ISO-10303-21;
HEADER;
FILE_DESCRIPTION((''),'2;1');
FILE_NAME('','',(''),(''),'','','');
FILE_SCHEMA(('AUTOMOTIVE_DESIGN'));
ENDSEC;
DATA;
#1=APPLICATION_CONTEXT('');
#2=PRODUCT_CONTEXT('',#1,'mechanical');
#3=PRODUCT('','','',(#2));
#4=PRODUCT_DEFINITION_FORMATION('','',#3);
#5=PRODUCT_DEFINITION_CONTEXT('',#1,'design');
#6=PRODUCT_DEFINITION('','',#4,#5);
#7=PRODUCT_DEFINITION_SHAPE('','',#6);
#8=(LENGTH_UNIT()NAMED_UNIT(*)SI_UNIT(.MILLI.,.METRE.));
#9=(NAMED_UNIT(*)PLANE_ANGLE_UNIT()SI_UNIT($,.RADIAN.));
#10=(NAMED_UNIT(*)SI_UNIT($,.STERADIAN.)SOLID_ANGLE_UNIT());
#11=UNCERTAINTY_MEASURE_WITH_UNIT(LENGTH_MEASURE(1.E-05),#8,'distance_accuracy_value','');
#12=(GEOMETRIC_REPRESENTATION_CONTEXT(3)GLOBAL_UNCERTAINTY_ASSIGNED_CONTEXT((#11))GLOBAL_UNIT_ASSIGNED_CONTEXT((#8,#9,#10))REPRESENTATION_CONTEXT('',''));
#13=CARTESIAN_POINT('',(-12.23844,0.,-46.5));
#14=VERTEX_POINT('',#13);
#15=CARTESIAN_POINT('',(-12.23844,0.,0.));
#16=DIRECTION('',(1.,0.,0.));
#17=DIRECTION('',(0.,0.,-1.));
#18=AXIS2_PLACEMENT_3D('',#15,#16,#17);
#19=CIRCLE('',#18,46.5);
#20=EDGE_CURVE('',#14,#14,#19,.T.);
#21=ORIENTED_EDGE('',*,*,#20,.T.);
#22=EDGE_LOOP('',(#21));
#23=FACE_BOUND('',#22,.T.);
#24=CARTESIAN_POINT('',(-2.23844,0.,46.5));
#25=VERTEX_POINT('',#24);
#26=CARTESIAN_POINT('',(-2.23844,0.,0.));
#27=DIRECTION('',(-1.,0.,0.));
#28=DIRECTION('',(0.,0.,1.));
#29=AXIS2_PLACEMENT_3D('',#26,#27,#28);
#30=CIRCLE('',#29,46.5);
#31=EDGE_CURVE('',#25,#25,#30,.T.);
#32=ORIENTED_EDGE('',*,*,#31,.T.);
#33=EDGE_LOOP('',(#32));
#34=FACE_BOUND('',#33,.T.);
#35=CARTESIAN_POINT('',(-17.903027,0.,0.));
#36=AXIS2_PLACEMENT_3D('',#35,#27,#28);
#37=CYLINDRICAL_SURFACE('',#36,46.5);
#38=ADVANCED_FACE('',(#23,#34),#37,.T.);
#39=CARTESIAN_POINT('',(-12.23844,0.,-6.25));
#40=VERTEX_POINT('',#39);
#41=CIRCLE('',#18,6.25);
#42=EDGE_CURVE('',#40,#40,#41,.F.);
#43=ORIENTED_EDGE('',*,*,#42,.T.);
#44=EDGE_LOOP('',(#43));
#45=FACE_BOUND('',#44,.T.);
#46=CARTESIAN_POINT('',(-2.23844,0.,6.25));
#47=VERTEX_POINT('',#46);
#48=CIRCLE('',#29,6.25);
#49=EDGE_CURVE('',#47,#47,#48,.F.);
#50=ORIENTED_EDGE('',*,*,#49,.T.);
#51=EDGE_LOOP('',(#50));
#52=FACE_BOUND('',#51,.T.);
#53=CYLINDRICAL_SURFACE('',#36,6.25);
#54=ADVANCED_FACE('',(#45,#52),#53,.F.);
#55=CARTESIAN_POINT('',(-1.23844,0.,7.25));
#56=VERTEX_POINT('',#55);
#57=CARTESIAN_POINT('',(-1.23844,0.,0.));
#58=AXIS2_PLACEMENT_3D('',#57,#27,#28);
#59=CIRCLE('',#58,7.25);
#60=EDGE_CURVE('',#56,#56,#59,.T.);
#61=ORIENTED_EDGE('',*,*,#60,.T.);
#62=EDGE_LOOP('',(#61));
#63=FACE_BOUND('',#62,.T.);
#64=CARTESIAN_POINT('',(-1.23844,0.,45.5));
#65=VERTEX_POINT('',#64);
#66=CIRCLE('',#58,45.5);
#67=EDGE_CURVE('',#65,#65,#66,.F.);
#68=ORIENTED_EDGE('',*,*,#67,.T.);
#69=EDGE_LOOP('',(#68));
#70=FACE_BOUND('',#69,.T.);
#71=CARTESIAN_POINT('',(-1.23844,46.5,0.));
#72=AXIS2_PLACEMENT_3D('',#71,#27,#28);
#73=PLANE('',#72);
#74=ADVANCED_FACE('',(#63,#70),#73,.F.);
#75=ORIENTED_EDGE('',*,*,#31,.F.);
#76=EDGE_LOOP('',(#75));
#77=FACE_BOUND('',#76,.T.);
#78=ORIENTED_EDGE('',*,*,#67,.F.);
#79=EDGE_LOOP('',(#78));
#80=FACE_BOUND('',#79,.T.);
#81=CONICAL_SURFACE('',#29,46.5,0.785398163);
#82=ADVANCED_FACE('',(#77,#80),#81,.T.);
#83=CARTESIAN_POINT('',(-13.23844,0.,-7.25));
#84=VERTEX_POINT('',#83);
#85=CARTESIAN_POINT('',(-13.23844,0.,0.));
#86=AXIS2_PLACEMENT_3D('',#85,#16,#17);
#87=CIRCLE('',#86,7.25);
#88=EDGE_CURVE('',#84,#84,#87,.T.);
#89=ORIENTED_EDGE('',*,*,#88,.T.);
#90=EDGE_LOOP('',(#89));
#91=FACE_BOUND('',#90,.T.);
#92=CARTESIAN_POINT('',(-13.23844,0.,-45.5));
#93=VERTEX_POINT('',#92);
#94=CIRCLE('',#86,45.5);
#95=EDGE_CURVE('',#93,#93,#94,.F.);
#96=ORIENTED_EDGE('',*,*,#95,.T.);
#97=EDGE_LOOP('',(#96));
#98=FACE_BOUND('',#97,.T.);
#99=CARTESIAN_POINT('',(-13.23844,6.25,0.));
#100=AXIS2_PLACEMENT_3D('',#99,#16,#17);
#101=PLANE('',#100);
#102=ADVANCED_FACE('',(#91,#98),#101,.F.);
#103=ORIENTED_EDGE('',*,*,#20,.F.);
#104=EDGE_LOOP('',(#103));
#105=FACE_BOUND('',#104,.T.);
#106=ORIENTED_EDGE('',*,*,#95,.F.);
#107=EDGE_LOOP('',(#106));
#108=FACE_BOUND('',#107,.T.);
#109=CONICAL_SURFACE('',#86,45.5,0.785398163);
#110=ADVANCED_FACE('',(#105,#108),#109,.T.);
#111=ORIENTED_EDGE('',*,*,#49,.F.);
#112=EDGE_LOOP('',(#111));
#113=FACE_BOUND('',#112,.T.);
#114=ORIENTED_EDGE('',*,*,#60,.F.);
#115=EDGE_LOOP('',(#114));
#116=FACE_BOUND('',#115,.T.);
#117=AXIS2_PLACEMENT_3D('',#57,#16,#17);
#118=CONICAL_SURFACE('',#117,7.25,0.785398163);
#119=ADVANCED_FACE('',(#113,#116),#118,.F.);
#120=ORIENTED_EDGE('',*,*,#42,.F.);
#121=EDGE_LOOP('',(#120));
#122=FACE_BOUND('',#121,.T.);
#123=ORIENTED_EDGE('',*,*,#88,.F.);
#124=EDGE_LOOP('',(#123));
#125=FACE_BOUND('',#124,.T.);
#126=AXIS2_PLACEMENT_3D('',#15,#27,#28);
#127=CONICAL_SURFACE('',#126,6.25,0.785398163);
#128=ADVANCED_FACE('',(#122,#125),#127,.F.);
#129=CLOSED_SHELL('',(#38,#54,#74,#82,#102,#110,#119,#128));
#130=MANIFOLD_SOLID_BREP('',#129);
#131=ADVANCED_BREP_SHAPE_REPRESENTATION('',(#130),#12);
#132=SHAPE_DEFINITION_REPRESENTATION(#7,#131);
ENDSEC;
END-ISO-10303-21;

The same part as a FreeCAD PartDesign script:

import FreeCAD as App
import Part
import Sketcher

V = App.Vector
Q = App.Units.Quantity


def edges_at(feature, points):
    """Names of the edges that pass closest to the given points."""
    edges = feature.Shape.Edges
    near = lambda p: min(range(len(edges)), key=lambda i: edges[i].distToShape(Part.Vertex(*p))[0])
    return sorted({f"Edge{near(p) + 1}" for p in points})

doc = App.newDocument("Part")
body = doc.addObject("PartDesign::Body", "Body")

# Sketch on XY plane
sketch1 = body.newObject("Sketcher::SketchObject", "Sketch")
sketch1.AttachmentSupport = (doc.getObject("XY_Plane"), [""])
sketch1.MapMode = "FlatFace"
sketch1.addGeometry([
    Part.LineSegment(V(-13, 46, 0), V(-13, 6, 0)),
    Part.LineSegment(V(-13, 6, 0), V(-1, 6, 0)),
    Part.LineSegment(V(-1, 6, 0), V(-1, 46, 0)),
    Part.LineSegment(V(-1, 46, 0), V(-13, 46, 0)),
], False)
sketch1.addConstraint([
    Sketcher.Constraint("Coincident", 0, 2, 1, 1),
    Sketcher.Constraint("Coincident", 1, 2, 2, 1),
    Sketcher.Constraint("Coincident", 2, 2, 3, 1),
    Sketcher.Constraint("Coincident", 3, 2, 0, 1),
    Sketcher.Constraint("Vertical", 0),
    Sketcher.Constraint("Horizontal", 1),
    Sketcher.Constraint("Vertical", 2),
    Sketcher.Constraint("Horizontal", 3),
    Sketcher.Constraint("DistanceX", 1, 1, 1, 2, Q("12 mm")),
    Sketcher.Constraint("DistanceY", 0, 2, 0, 1, Q("40.25 mm")),
    Sketcher.Constraint("DistanceY", -1, 1, 2, 2, Q("46.5 mm")),
    Sketcher.Constraint("DistanceX", 0, 2, -1, 1, Q("13.23844 mm")),
])
revolution = body.newObject("PartDesign::Revolution", "Revolution")
revolution.Profile = sketch1
revolution.ReferenceAxis = (sketch1, ["H_Axis"])
revolution.Angle = 360
doc.recompute()

chamfer = body.newObject("PartDesign::Chamfer", "Chamfer")
chamfer.Base = (revolution, edges_at(revolution, [
    (-1.238, 0, -6.25),
    (-1.238, 0, -46.5),
    (-13.238, 0, -46.5),
    (-13.238, 0, -6.25),
]))
chamfer.Size = 1

doc.recompute()
